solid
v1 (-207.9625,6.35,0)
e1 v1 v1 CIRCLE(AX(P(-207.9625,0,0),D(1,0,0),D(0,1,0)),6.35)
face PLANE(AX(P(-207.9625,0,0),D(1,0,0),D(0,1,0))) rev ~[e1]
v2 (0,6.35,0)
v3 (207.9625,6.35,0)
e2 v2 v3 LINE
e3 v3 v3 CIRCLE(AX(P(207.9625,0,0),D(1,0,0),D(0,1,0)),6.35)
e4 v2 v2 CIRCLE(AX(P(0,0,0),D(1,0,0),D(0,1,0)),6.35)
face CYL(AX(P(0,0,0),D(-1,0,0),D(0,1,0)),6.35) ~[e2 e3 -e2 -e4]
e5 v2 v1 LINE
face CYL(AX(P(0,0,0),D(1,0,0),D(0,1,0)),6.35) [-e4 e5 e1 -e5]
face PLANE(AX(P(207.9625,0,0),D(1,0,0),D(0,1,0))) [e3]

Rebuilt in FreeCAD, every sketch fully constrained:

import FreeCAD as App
import Part
import Sketcher
from FreeCAD import Vector
Q = App.Units.Quantity

doc = App.newDocument("Part")
body = doc.addObject("PartDesign::Body", "Body")

sketch1 = body.newObject("Sketcher::SketchObject", "Sketch")
sketch1.AttachmentSupport = (doc.getObject("YZ_Plane"), [""])
sketch1.MapMode = "FlatFace"
sketch1.addGeometry(Part.Circle(Vector(0, 0, 0), Vector(0, 0, 1), 6), False)
sketch1.addConstraint([
    Sketcher.Constraint("Coincident", 0, 3, -1, 1),
    Sketcher.Constraint("Diameter", 0, Q("0.5 in")),
])
pad1 = body.newObject("PartDesign::Pad", "Pad")
pad1.Profile = sketch1
pad1.Length = Q("16.375 in")
pad1.Midplane = True

doc.recompute()
